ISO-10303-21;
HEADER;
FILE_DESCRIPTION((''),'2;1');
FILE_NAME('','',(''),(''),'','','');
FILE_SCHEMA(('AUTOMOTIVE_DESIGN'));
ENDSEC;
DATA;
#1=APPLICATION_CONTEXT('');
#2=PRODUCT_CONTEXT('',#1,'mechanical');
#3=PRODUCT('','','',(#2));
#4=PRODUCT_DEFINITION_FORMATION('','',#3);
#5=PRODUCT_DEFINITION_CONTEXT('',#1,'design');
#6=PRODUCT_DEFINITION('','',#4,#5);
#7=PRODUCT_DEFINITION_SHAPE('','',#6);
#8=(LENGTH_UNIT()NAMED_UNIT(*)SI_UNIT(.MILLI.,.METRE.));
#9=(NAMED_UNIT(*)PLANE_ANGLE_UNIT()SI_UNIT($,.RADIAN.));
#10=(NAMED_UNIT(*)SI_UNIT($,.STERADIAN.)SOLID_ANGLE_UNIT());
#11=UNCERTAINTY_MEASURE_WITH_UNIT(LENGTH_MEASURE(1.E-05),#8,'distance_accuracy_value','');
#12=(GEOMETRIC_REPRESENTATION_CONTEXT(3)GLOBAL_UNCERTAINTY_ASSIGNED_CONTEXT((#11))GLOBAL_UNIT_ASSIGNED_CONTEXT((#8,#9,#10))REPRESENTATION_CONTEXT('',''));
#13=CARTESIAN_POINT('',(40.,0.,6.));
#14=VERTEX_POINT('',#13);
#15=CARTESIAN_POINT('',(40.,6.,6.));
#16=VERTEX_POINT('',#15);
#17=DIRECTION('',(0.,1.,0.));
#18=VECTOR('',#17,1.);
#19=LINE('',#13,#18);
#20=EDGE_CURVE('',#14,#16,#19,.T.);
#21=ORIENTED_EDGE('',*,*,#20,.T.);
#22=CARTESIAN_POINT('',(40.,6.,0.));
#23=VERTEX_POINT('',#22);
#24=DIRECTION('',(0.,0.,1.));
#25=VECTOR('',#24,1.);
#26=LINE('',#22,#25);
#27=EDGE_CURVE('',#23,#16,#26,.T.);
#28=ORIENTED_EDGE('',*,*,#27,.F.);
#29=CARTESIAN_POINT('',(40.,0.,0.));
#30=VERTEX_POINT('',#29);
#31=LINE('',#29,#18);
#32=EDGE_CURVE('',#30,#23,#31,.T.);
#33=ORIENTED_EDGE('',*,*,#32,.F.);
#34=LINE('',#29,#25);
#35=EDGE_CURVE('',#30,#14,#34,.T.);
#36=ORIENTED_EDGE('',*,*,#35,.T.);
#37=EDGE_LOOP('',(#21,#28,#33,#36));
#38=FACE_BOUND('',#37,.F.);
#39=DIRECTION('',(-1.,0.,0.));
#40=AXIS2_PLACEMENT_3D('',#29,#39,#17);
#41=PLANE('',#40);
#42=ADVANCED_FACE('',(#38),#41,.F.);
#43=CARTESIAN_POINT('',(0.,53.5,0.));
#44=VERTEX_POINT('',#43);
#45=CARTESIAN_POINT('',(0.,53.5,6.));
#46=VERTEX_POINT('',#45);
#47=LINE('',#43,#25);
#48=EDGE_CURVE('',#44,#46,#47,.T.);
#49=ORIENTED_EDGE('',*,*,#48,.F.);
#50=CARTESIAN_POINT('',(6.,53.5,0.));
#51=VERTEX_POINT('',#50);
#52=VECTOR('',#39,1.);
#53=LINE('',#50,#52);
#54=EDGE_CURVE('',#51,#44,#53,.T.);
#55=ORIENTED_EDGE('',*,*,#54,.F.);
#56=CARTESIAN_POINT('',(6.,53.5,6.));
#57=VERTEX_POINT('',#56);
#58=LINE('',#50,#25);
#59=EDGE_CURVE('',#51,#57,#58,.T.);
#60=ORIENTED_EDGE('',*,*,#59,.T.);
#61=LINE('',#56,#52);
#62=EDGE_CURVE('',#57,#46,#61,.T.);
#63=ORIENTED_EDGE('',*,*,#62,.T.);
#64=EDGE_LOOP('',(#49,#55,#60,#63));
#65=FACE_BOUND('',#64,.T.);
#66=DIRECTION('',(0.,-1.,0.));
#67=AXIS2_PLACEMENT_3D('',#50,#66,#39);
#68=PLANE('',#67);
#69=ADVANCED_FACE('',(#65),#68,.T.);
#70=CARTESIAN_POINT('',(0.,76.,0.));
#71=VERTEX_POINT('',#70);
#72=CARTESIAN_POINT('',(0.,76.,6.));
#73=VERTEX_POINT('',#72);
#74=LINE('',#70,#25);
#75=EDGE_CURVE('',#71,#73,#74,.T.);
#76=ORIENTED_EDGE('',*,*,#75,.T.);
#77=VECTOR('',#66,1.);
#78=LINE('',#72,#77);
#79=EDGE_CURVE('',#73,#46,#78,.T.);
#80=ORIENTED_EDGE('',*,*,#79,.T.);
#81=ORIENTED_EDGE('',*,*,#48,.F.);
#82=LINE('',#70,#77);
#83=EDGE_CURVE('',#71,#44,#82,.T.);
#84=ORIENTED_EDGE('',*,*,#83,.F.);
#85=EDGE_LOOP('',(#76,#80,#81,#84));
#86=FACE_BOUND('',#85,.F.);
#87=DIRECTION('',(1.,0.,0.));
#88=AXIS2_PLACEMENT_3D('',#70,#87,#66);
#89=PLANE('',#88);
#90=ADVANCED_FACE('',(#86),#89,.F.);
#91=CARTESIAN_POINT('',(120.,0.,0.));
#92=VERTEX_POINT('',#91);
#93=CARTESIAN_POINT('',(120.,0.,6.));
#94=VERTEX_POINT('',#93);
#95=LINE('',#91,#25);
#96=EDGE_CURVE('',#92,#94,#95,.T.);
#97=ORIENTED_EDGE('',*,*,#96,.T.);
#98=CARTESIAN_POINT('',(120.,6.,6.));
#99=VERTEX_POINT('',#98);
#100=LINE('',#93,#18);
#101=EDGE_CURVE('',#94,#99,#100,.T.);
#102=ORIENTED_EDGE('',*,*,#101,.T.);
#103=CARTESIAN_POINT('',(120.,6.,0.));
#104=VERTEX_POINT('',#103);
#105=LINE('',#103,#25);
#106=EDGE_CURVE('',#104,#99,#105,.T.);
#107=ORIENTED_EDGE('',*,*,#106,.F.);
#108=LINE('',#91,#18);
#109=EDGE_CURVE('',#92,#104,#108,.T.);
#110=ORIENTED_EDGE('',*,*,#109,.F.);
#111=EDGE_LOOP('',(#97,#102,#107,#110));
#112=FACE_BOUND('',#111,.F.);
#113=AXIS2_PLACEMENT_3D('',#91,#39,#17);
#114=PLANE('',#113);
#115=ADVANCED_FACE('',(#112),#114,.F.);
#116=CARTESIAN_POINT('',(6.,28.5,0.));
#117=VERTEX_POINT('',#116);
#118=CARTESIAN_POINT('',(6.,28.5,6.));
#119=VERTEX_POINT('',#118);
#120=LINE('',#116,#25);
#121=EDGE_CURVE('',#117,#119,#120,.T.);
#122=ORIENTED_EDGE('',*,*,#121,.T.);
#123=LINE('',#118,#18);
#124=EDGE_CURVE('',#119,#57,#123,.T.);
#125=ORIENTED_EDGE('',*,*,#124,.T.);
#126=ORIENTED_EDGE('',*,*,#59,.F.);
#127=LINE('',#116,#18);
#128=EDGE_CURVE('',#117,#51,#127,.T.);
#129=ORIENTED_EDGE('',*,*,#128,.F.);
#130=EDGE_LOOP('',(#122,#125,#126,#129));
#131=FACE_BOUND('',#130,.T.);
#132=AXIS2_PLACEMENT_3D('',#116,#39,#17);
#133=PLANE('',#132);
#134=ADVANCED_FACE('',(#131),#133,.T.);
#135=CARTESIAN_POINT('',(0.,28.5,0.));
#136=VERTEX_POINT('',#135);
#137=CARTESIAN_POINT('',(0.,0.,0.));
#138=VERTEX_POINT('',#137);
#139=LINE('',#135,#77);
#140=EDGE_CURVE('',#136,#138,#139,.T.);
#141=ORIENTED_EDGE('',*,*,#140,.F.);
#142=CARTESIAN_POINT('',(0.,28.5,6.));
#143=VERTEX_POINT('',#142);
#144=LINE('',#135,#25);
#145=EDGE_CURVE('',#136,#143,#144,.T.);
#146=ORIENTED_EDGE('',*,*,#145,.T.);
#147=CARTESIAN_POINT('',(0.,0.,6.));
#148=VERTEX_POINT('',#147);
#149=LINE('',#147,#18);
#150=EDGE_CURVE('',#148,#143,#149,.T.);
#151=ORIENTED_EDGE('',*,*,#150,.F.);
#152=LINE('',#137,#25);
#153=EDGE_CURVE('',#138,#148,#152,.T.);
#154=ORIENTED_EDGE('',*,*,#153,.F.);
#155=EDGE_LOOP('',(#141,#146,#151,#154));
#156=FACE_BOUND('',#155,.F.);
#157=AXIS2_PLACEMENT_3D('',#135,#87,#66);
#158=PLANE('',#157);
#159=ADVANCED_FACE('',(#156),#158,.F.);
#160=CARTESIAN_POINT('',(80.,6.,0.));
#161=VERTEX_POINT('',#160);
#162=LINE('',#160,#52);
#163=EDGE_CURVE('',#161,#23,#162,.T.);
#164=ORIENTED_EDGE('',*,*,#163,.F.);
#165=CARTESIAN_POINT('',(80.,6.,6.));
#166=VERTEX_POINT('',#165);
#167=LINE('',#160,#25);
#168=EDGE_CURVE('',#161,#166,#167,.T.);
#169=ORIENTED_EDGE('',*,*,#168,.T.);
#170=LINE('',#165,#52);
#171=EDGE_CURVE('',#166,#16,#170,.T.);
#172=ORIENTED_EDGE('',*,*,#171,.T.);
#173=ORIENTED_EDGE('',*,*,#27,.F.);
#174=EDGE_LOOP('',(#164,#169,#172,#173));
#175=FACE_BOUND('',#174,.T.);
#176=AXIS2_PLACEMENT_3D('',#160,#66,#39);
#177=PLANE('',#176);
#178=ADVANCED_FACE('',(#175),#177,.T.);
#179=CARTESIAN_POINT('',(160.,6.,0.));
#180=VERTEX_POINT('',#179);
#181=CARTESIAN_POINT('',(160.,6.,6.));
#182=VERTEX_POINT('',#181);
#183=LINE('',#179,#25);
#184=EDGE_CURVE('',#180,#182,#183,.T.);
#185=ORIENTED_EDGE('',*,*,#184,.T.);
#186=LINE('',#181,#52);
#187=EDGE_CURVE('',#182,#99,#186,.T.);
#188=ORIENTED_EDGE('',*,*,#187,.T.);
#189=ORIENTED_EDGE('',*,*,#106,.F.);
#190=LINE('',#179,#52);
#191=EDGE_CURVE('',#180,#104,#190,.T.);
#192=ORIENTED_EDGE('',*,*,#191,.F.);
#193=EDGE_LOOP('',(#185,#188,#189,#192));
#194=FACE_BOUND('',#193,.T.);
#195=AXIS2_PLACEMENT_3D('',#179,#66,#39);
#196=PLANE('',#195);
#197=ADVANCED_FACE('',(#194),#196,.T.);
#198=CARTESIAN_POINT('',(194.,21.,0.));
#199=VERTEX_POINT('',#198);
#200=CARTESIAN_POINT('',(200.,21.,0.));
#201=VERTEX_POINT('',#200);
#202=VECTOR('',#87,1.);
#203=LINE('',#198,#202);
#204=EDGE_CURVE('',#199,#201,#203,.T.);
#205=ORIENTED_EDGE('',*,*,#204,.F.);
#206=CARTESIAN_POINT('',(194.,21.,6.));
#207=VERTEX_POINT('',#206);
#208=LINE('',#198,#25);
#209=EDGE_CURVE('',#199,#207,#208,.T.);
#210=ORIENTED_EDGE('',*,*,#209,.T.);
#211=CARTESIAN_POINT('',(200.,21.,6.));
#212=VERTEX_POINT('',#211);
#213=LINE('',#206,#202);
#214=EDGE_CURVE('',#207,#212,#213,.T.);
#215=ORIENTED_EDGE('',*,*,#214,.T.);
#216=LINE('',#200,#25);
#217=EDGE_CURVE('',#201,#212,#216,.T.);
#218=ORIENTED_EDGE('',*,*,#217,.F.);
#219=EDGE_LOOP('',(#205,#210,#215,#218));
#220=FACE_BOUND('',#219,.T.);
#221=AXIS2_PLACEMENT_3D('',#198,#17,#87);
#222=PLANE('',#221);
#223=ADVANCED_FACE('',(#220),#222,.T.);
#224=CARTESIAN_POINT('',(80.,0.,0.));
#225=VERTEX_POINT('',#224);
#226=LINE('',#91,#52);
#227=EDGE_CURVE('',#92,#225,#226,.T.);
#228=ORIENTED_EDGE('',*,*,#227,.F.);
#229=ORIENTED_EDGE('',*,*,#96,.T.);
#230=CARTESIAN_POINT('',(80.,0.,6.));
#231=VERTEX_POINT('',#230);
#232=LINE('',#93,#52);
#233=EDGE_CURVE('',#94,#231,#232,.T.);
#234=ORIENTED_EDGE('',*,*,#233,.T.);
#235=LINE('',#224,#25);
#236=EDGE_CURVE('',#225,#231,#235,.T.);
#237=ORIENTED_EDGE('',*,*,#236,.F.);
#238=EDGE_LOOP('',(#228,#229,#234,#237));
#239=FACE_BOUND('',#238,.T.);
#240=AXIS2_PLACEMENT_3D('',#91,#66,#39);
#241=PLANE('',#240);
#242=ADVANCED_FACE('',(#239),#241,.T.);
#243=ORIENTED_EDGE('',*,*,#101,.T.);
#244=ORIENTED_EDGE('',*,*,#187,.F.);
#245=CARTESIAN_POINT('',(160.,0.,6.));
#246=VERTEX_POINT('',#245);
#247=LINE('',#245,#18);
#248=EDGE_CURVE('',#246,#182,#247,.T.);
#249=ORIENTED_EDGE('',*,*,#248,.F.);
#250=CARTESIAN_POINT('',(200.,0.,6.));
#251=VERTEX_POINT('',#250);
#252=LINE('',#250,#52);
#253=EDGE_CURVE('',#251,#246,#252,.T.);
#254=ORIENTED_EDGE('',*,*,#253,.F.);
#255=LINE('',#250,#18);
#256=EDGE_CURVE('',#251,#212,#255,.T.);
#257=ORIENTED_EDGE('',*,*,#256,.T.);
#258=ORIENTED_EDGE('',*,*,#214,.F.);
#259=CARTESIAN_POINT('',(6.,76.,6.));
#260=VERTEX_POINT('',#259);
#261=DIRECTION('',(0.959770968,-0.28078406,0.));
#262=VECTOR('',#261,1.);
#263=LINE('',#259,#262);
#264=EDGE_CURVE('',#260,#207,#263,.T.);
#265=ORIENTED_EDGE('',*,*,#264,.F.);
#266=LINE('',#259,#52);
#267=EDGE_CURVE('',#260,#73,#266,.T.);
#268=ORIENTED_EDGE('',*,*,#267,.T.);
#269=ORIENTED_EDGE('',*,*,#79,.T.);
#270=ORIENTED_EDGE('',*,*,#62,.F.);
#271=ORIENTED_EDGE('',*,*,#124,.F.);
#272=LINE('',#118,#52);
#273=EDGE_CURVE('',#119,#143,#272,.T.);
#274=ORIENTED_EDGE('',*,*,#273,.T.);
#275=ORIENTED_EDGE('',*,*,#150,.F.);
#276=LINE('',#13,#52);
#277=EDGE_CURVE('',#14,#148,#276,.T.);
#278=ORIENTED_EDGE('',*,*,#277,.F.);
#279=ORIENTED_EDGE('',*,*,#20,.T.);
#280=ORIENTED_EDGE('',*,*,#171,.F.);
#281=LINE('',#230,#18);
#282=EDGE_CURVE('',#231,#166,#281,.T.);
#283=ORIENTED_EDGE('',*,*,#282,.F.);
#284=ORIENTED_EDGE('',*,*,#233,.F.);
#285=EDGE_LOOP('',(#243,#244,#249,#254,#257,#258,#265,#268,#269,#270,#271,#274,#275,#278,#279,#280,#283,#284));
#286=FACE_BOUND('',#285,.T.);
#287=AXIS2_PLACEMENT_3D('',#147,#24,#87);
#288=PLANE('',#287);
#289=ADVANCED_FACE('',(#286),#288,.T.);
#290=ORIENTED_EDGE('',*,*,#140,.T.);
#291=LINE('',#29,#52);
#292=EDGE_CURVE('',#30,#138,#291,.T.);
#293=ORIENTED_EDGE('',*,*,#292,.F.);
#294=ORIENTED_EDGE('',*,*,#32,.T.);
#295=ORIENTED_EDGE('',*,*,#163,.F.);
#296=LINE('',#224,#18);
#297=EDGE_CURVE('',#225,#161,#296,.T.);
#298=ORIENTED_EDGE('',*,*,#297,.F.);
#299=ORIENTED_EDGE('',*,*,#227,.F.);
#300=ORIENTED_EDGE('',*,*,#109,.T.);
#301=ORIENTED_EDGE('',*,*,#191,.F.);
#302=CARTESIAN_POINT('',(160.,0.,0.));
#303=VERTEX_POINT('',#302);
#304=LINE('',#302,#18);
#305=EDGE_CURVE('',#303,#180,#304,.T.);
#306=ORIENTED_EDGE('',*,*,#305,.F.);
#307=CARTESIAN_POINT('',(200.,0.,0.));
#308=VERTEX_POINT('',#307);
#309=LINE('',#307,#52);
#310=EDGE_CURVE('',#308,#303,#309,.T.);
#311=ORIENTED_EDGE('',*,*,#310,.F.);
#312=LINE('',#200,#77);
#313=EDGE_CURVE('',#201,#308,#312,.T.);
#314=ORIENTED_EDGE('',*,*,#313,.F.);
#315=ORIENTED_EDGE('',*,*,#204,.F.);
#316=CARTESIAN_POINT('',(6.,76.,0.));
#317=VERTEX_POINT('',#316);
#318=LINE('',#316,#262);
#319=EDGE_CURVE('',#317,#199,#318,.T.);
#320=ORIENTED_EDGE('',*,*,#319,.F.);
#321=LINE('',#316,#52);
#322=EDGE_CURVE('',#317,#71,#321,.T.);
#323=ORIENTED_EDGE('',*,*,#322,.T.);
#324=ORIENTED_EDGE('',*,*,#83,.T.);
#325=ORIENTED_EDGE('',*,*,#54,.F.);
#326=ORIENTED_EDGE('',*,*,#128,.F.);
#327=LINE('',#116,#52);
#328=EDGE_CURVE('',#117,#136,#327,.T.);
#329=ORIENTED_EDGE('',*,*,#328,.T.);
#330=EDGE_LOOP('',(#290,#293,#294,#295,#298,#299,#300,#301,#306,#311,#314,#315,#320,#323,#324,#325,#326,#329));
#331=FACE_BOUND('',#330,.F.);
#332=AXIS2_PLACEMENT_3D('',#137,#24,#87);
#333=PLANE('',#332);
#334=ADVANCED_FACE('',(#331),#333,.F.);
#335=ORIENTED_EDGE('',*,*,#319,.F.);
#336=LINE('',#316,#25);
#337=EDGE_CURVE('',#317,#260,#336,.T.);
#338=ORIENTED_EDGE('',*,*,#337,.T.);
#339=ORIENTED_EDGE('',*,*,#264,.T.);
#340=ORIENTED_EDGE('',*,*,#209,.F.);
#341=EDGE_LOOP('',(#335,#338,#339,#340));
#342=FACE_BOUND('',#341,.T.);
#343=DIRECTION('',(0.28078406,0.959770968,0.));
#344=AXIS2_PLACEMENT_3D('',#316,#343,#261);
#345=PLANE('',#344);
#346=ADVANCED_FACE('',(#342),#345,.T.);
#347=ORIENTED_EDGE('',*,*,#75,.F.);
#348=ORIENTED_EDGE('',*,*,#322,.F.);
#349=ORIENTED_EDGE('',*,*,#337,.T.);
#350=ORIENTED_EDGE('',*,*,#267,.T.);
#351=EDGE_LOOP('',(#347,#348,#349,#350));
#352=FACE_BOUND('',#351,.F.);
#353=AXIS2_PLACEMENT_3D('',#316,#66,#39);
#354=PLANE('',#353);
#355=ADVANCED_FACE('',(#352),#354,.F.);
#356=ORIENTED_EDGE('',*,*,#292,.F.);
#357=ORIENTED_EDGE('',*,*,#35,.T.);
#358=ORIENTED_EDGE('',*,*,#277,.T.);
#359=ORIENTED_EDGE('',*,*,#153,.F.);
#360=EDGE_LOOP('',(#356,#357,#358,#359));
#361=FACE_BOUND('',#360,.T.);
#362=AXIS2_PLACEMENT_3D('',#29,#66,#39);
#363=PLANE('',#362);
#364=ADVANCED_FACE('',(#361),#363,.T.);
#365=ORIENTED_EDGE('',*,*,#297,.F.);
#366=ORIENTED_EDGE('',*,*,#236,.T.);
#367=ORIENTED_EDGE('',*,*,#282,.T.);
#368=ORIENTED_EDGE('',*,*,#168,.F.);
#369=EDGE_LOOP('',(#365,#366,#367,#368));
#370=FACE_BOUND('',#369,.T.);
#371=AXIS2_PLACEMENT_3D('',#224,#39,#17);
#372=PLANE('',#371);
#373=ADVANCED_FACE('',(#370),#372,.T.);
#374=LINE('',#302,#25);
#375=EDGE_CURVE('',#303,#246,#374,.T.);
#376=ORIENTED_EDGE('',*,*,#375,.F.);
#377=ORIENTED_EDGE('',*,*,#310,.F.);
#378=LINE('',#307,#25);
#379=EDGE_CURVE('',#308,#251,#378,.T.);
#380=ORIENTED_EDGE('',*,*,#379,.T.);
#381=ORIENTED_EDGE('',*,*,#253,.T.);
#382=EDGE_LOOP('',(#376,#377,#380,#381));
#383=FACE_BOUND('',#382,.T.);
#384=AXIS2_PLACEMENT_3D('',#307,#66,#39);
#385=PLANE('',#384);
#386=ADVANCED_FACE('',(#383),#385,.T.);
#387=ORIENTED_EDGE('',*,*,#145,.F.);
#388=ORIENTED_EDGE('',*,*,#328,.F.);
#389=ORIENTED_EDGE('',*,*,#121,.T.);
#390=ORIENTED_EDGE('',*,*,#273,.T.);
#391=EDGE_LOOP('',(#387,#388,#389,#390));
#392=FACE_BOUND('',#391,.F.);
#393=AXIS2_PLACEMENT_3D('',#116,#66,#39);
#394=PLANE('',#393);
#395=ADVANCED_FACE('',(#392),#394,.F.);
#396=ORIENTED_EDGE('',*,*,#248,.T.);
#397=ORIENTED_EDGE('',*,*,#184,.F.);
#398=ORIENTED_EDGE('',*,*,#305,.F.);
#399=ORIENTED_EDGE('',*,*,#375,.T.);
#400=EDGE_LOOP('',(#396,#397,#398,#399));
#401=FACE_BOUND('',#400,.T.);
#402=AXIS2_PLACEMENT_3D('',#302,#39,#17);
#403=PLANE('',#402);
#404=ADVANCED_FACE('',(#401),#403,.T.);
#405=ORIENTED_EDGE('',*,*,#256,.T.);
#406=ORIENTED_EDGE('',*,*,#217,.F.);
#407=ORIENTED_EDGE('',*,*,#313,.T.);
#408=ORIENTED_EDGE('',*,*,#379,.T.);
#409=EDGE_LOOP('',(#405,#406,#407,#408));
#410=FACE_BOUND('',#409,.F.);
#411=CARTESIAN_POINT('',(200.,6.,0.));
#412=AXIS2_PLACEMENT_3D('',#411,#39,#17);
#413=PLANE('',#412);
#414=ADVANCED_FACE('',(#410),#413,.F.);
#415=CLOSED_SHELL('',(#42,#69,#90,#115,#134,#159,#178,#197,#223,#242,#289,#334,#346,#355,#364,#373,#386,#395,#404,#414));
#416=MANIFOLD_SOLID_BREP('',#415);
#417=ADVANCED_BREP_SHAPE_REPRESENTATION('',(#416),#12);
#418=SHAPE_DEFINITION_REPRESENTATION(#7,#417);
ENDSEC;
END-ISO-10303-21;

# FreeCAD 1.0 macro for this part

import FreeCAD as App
import Part
import Sketcher
Q = App.Units.Quantity

doc = App.newDocument("Part")
body = doc.addObject("PartDesign::Body", "Body")

sketch1 = doc.addObject("Sketcher::SketchObject", "Sketch")
body.addObject(sketch1)
sketch1.AttachmentSupport = (doc.XY_Plane, [""])
sketch1.MapMode = "FlatFace"
sketch1.addGeometry(Part.LineSegment(App.Vector(0, 28, 0), App.Vector(0, 0, 0)), False)
sketch1.addGeometry(Part.LineSegment(App.Vector(0, 0, 0), App.Vector(40, 0, 0)), False)
sketch1.addGeometry(Part.LineSegment(App.Vector(40, 0, 0), App.Vector(40, 6, 0)), False)
sketch1.addGeometry(Part.LineSegment(App.Vector(40, 6, 0), App.Vector(80, 6, 0)), False)
sketch1.addGeometry(Part.LineSegment(App.Vector(80, 6, 0), App.Vector(80, 0, 0)), False)
sketch1.addGeometry(Part.LineSegment(App.Vector(80, 0, 0), App.Vector(120, 0, 0)), False)
sketch1.addGeometry(Part.LineSegment(App.Vector(120, 0, 0), App.Vector(120, 6, 0)), False)
sketch1.addGeometry(Part.LineSegment(App.Vector(120, 6, 0), App.Vector(160, 6, 0)), False)
sketch1.addGeometry(Part.LineSegment(App.Vector(160, 6, 0), App.Vector(160, 0, 0)), False)
sketch1.addGeometry(Part.LineSegment(App.Vector(160, 0, 0), App.Vector(200, 0, 0)), False)
sketch1.addGeometry(Part.LineSegment(App.Vector(200, 0, 0), App.Vector(200, 21, 0)), False)
sketch1.addGeometry(Part.LineSegment(App.Vector(200, 21, 0), App.Vector(194, 21, 0)), False)
sketch1.addGeometry(Part.LineSegment(App.Vector(194, 21, 0), App.Vector(6, 76, 0)), False)
sketch1.addGeometry(Part.LineSegment(App.Vector(6, 76, 0), App.Vector(0, 76, 0)), False)
sketch1.addGeometry(Part.LineSegment(App.Vector(0, 76, 0), App.Vector(0, 54, 0)), False)
sketch1.addGeometry(Part.LineSegment(App.Vector(0, 54, 0), App.Vector(6, 54, 0)), False)
sketch1.addGeometry(Part.LineSegment(App.Vector(6, 54, 0), App.Vector(6, 28, 0)), False)
sketch1.addGeometry(Part.LineSegment(App.Vector(6, 28, 0), App.Vector(0, 28, 0)), False)
sketch1.addConstraint(Sketcher.Constraint("Coincident", 0, 2, 1, 1))
sketch1.addConstraint(Sketcher.Constraint("Coincident", 1, 2, 2, 1))
sketch1.addConstraint(Sketcher.Constraint("Coincident", 2, 2, 3, 1))
sketch1.addConstraint(Sketcher.Constraint("Coincident", 3, 2, 4, 1))
sketch1.addConstraint(Sketcher.Constraint("Coincident", 4, 2, 5, 1))
sketch1.addConstraint(Sketcher.Constraint("Coincident", 5, 2, 6, 1))
sketch1.addConstraint(Sketcher.Constraint("Coincident", 6, 2, 7, 1))
sketch1.addConstraint(Sketcher.Constraint("Coincident", 7, 2, 8, 1))
sketch1.addConstraint(Sketcher.Constraint("Coincident", 8, 2, 9, 1))
sketch1.addConstraint(Sketcher.Constraint("Coincident", 9, 2, 10, 1))
sketch1.addConstraint(Sketcher.Constraint("Coincident", 10, 2, 11, 1))
sketch1.addConstraint(Sketcher.Constraint("Coincident", 11, 2, 12, 1))
sketch1.addConstraint(Sketcher.Constraint("Coincident", 12, 2, 13, 1))
sketch1.addConstraint(Sketcher.Constraint("Coincident", 13, 2, 14, 1))
sketch1.addConstraint(Sketcher.Constraint("Coincident", 14, 2, 15, 1))
sketch1.addConstraint(Sketcher.Constraint("Coincident", 15, 2, 16, 1))
sketch1.addConstraint(Sketcher.Constraint("Coincident", 16, 2, 17, 1))
sketch1.addConstraint(Sketcher.Constraint("Coincident", 17, 2, 0, 1))
sketch1.addConstraint(Sketcher.Constraint("Vertical", 0))
sketch1.addConstraint(Sketcher.Constraint("Horizontal", 1))
sketch1.addConstraint(Sketcher.Constraint("Vertical", 2))
sketch1.addConstraint(Sketcher.Constraint("Horizontal", 3))
sketch1.addConstraint(Sketcher.Constraint("Vertical", 4))
sketch1.addConstraint(Sketcher.Constraint("Horizontal", 5))
sketch1.addConstraint(Sketcher.Constraint("Vertical", 6))
sketch1.addConstraint(Sketcher.Constraint("Horizontal", 7))
sketch1.addConstraint(Sketcher.Constraint("Vertical", 8))
sketch1.addConstraint(Sketcher.Constraint("Horizontal", 9))
sketch1.addConstraint(Sketcher.Constraint("Vertical", 10))
sketch1.addConstraint(Sketcher.Constraint("Horizontal", 11))
sketch1.addConstraint(Sketcher.Constraint("Horizontal", 13))
sketch1.addConstraint(Sketcher.Constraint("Vertical", 14))
sketch1.addConstraint(Sketcher.Constraint("Horizontal", 15))
sketch1.addConstraint(Sketcher.Constraint("Vertical", 16))
sketch1.addConstraint(Sketcher.Constraint("Horizontal", 17))
sketch1.addConstraint(Sketcher.Constraint("Coincident", 0, 2, -1, 1))
sketch1.addConstraint(Sketcher.Constraint("PointOnObject", 4, 2, -1))
sketch1.addConstraint(Sketcher.Constraint("PointOnObject", 8, 2, -1))
sketch1.addConstraint(Sketcher.Constraint("PointOnObject", 13, 2, -2))
sketch1.addConstraint(Sketcher.Constraint("Horizontal", 3, 2, 6, 2))
sketch1.addConstraint(Sketcher.Constraint("Vertical", 12, 2, 15, 2))
sketch1.addConstraint(Sketcher.Constraint("Equal", 1, 3))
sketch1.addConstraint(Sketcher.Constraint("Equal", 3, 5))
sketch1.addConstraint(Sketcher.Constraint("Equal", 5, 7))
sketch1.addConstraint(Sketcher.Constraint("Equal", 7, 9))
sketch1.addConstraint(Sketcher.Constraint("Equal", 11, 13))
sketch1.addConstraint(Sketcher.Constraint("Equal", 17, 2))
sketch1.addConstraint(Sketcher.Constraint("DistanceX", 1, 1, 1, 2, Q("40 mm")))
sketch1.addConstraint(Sketcher.Constraint("DistanceX", 11, 2, 11, 1, Q("6 mm")))
sketch1.addConstraint(Sketcher.Constraint("DistanceY", 10, 1, 10, 2, Q("21 mm")))
sketch1.addConstraint(Sketcher.Constraint("DistanceY", 16, 2, 16, 1, Q("25 mm")))
sketch1.addConstraint(Sketcher.Constraint("DistanceY", 0, 2, 0, 1, Q("28.5 mm")))
sketch1.addConstraint(Sketcher.Constraint("DistanceY", 14, 2, 14, 1, Q("22.5 mm")))
pad1 = doc.addObject("PartDesign::Pad", "Pad")
body.addObject(pad1)
pad1.Profile = sketch1
pad1.Length = 6

doc.recompute()
